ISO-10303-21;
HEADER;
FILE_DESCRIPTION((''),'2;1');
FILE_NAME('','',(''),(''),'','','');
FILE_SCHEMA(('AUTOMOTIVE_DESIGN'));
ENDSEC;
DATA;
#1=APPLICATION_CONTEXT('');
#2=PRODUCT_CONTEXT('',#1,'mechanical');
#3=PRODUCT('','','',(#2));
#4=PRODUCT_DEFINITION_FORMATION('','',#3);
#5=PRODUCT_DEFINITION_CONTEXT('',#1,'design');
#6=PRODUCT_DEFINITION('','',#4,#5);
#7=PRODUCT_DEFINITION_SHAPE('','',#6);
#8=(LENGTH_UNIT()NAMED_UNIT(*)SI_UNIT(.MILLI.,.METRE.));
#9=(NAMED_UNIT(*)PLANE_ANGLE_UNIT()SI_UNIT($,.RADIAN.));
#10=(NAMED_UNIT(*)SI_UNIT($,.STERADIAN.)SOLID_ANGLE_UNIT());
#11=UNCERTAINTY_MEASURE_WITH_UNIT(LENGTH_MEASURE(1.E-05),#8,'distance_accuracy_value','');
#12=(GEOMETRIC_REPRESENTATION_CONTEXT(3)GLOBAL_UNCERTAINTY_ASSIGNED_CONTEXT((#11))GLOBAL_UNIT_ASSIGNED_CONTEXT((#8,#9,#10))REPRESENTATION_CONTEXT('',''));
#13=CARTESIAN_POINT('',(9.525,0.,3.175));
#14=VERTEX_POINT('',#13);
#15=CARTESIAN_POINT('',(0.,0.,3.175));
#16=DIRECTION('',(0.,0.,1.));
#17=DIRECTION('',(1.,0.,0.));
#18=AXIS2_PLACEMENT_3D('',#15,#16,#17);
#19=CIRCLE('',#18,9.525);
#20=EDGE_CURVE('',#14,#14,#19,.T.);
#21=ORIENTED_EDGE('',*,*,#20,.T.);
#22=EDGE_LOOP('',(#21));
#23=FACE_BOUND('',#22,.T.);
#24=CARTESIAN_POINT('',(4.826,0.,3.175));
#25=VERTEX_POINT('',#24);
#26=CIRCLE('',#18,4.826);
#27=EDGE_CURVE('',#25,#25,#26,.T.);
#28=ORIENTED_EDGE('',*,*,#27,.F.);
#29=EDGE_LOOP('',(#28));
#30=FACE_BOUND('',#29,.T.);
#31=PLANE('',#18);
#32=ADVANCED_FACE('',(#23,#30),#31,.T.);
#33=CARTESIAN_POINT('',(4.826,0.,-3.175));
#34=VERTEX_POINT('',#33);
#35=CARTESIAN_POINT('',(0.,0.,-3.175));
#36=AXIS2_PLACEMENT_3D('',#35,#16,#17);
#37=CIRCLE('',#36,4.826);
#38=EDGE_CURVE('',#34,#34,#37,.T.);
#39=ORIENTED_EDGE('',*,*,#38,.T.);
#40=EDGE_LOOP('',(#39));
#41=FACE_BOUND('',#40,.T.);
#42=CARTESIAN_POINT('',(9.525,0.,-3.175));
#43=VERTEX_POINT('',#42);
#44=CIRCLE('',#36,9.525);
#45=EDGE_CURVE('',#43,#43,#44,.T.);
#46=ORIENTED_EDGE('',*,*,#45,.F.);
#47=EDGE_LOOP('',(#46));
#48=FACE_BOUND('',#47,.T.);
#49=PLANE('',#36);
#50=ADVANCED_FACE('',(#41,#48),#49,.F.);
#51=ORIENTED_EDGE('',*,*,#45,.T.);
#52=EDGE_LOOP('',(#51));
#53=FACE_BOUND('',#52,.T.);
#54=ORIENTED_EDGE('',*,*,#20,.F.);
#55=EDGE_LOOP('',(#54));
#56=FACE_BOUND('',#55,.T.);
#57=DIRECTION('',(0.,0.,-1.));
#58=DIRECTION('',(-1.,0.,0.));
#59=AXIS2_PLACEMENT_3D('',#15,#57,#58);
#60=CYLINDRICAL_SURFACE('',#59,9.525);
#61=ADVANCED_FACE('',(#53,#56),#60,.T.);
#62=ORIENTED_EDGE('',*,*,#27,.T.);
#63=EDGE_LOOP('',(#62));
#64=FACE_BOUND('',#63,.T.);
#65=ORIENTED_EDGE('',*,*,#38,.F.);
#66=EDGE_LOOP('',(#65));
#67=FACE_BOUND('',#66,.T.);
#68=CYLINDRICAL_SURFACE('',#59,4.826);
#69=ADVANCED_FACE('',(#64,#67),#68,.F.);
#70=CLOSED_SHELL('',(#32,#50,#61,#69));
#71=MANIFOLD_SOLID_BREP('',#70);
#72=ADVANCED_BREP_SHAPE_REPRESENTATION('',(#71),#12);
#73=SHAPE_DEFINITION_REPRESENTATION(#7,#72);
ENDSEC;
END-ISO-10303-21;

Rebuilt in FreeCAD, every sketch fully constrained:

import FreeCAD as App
import Part
import Sketcher

V = App.Vector
Q = App.Units.Quantity

doc = App.newDocument("Part")
body = doc.addObject("PartDesign::Body", "Body")

sketch1 = doc.addObject("Sketcher::SketchObject", "Sketch")
body.addObject(sketch1)
sketch1.AttachmentSupport = (doc.XY_Plane, [""])
sketch1.MapMode = "FlatFace"
sketch1.addGeometry(Part.Circle(V(0, 0, 0), V(0, 0, 1), 9.5), False)
sketch1.addGeometry(Part.Circle(V(0, 0, 0), V(0, 0, 1), 4.8), False)
sketch1.addConstraint(Sketcher.Constraint("Coincident", 0, 3, -1, 1))
sketch1.addConstraint(Sketcher.Constraint("Coincident", 1, 3, -1, 1))
sketch1.addConstraint(Sketcher.Constraint("Diameter", 0, Q("0.75 in")))
sketch1.addConstraint(Sketcher.Constraint("Diameter", 1, Q("0.38 in")))
pad1 = doc.addObject("PartDesign::Pad", "Pad")
body.addObject(pad1)
pad1.Profile = sketch1
pad1.Length = Q("0.25 in")
pad1.Midplane = True

doc.recompute()
